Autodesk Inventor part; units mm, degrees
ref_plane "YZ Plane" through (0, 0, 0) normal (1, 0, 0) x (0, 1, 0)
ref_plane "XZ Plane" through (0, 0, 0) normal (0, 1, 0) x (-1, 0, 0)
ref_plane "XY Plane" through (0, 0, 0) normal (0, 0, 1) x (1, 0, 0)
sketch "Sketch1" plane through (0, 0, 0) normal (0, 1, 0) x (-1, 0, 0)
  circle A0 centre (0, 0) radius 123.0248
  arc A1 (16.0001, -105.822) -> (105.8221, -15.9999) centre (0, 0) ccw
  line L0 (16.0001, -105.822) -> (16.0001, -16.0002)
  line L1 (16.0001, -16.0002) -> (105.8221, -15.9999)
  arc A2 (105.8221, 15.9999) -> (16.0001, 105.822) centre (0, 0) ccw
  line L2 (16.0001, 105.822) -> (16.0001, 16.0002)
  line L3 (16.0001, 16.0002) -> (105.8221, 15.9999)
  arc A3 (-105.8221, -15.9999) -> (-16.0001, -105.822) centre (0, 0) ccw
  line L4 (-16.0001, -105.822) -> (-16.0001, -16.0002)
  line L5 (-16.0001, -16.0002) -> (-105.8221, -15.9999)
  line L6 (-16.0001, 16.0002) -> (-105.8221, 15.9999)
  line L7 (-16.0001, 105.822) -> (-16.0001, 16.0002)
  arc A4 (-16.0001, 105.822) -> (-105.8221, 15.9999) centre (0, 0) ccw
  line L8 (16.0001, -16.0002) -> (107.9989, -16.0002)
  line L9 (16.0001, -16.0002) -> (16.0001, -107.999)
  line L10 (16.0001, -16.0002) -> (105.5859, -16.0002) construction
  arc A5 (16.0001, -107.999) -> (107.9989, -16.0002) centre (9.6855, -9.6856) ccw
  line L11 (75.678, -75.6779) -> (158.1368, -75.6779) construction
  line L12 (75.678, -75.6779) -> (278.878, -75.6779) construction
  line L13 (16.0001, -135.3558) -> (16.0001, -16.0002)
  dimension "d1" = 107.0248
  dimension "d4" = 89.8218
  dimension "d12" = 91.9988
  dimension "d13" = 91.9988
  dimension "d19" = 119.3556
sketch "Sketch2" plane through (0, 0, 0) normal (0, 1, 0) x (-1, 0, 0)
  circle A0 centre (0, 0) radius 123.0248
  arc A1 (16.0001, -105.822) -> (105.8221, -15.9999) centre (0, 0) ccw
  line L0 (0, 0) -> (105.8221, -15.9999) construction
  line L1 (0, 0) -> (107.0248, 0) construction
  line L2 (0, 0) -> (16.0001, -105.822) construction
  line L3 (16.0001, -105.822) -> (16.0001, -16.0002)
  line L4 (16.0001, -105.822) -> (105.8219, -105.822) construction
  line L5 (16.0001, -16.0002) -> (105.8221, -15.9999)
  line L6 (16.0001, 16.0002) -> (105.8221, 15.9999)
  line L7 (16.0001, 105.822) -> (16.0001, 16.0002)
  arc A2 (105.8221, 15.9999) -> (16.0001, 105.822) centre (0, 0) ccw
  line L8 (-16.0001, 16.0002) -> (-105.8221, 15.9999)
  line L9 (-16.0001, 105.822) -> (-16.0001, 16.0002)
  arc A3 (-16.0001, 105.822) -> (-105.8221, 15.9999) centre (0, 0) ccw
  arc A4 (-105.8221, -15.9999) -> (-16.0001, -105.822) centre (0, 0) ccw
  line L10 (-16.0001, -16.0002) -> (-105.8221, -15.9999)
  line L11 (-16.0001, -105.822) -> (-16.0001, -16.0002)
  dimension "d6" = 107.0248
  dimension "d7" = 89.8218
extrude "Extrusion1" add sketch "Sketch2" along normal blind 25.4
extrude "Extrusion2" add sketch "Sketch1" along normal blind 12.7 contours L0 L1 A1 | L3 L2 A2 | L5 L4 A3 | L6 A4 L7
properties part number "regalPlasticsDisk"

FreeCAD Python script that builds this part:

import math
import FreeCAD as App
import Part
import Sketcher

V = App.Vector
Q = App.Units.Quantity

doc = App.newDocument("Part")
body = doc.addObject("PartDesign::Body", "Body")

sketch1 = body.newObject("Sketcher::SketchObject", "Sketch")
sketch1.AttachmentSupport = (doc.getObject("XZ_Plane"), [""])
sketch1.MapMode = "FlatFace"
sketch1.addGeometry(Part.Circle(V(0, 0, 0), V(0, 0, 1), 123.0248), False)
sketch1.addGeometry(Part.ArcOfCircle(Part.Circle(V(0, 0, 0), V(0, 0, 1), 107.024758), math.radians(-81.402103), math.radians(-8.597783)), False)
sketch1.addGeometry(Part.LineSegment(V(105.8221, -15.9999, 0), V(16.0001, -16.0002, 0)), False)
sketch1.addGeometry(Part.LineSegment(V(16.0001, -16.0002, 0), V(16.0001, -105.822, 0)), False)
sketch1.addGeometry(Part.ArcOfCircle(Part.Circle(V(0, 0, 0), V(0, 0, 1), 107.024827), math.radians(-171.402217), math.radians(-98.597897)), False)
sketch1.addGeometry(Part.LineSegment(V(-16.0001, -105.822, 0), V(-16.0001, -16.0002, 0)), False)
sketch1.addGeometry(Part.LineSegment(V(-16.0001, -16.0002, 0), V(-105.8221, -15.9999, 0)), False)
sketch1.addGeometry(Part.LineSegment(V(16.0001, 105.822, 0), V(16.0001, 16.0002, 0)), False)
sketch1.addGeometry(Part.LineSegment(V(16.0001, 16.0002, 0), V(105.8221, 15.9999, 0)), False)
sketch1.addGeometry(Part.ArcOfCircle(Part.Circle(V(0, 0, 0), V(0, 0, 1), 107.024827), math.radians(8.597783), math.radians(81.402103)), False)
sketch1.addGeometry(Part.LineSegment(V(-105.8221, 15.9999, 0), V(-16.0001, 16.0002, 0)), False)
sketch1.addGeometry(Part.LineSegment(V(-16.0001, 16.0002, 0), V(-16.0001, 105.822, 0)), False)
sketch1.addGeometry(Part.ArcOfCircle(Part.Circle(V(0, 0, 0), V(0, 0, 1), 107.024758), math.radians(98.597897), math.radians(171.402217)), False)
sketch1.addConstraint(Sketcher.Constraint("Coincident", 1, 2, 2, 1))
sketch1.addConstraint(Sketcher.Constraint("Coincident", 2, 2, 3, 1))
sketch1.addConstraint(Sketcher.Constraint("Coincident", 3, 2, 1, 1))
sketch1.addConstraint(Sketcher.Constraint("Coincident", 4, 2, 5, 1))
sketch1.addConstraint(Sketcher.Constraint("Coincident", 5, 2, 6, 1))
sketch1.addConstraint(Sketcher.Constraint("Coincident", 6, 2, 4, 1))
sketch1.addConstraint(Sketcher.Constraint("Coincident", 7, 2, 8, 1))
sketch1.addConstraint(Sketcher.Constraint("Coincident", 8, 2, 9, 1))
sketch1.addConstraint(Sketcher.Constraint("Coincident", 9, 2, 7, 1))
sketch1.addConstraint(Sketcher.Constraint("Coincident", 10, 2, 11, 1))
sketch1.addConstraint(Sketcher.Constraint("Coincident", 11, 2, 12, 1))
sketch1.addConstraint(Sketcher.Constraint("Coincident", 12, 2, 10, 1))
sketch1.addConstraint(Sketcher.Constraint("Vertical", 3))
sketch1.addConstraint(Sketcher.Constraint("Vertical", 5))
sketch1.addConstraint(Sketcher.Constraint("Vertical", 7))
sketch1.addConstraint(Sketcher.Constraint("Vertical", 11))
sketch1.addConstraint(Sketcher.Constraint("Coincident", 0, 3, -1, 1))
sketch1.addConstraint(Sketcher.Constraint("Coincident", 1, 3, -1, 1))
sketch1.addConstraint(Sketcher.Constraint("Coincident", 4, 3, -1, 1))
sketch1.addConstraint(Sketcher.Constraint("Coincident", 9, 3, -1, 1))
sketch1.addConstraint(Sketcher.Constraint("Coincident", 12, 3, -1, 1))
sketch1.addConstraint(Sketcher.Constraint("Equal", 1, 4))
sketch1.addConstraint(Sketcher.Constraint("Equal", 4, 9))
sketch1.addConstraint(Sketcher.Constraint("Equal", 9, 12))
sketch1.addConstraint(Sketcher.Constraint("Symmetric", 5, 2, 7, 2, -1, 1))
sketch1.addConstraint(Sketcher.Constraint("Symmetric", 2, 2, 10, 2, -1, 1))
sketch1.addConstraint(Sketcher.Constraint("Symmetric", 2, 2, 5, 2, -2))
sketch1.addConstraint(Sketcher.Constraint("Parallel", 2, 6))
sketch1.addConstraint(Sketcher.Constraint("Parallel", 6, 8))
sketch1.addConstraint(Sketcher.Constraint("Parallel", 8, 10))
sketch1.addConstraint(Sketcher.Constraint("Horizontal", 1, 2, 6, 2))
sketch1.addConstraint(Sketcher.Constraint("Radius", 1, Q("107.0248 mm")))
sketch1.addConstraint(Sketcher.Constraint("Diameter", 0, Q("9.687 in")))
sketch1.addConstraint(Sketcher.Constraint("DistanceY", 3, 2, 3, 1, Q("3.5363 in")))
sketch1.addConstraint(Sketcher.Constraint("Distance", 2, Q("3.5363 in")))
pad1 = body.newObject("PartDesign::Pad", "Pad")
pad1.Profile = sketch1
pad1.Length = Q("1 in")
pad1.Reversed = True

sketch2 = body.newObject("Sketcher::SketchObject", "Sketch001")
sketch2.AttachmentSupport = (doc.getObject("XZ_Plane"), [""])
sketch2.MapMode = "FlatFace"
sketch2.addGeometry(Part.LineSegment(V(-16.0001, -16.0002, 0), V(-16.0001, -105.822, 0)), False)
sketch2.addGeometry(Part.ArcOfCircle(Part.Circle(V(0, 0, 0), V(0, 0, 1), 107.024827), math.radians(-171.402217), math.radians(-98.597897)), False)
sketch2.addGeometry(Part.LineSegment(V(-105.8221, -15.9999, 0), V(-16.0001, -16.0002, 0)), False)
sketch2.addGeometry(Part.LineSegment(V(-16.0001, 16.0002, 0), V(-105.8221, 15.9999, 0)), False)
sketch2.addGeometry(Part.ArcOfCircle(Part.Circle(V(0, 0, 0), V(0, 0, 1), 107.024758), math.radians(98.597897), math.radians(171.402217)), False)
sketch2.addGeometry(Part.LineSegment(V(-16.0001, 105.822, 0), V(-16.0001, 16.0002, 0)), False)
sketch2.addGeometry(Part.LineSegment(V(16.0001, -16.0002, 0), V(105.8221, -15.9999, 0)), False)
sketch2.addGeometry(Part.ArcOfCircle(Part.Circle(V(0, 0, 0), V(0, 0, 1), 107.024758), math.radians(-81.402103), math.radians(-8.597783)), False)
sketch2.addGeometry(Part.LineSegment(V(16.0001, -105.822, 0), V(16.0001, -16.0002, 0)), False)
sketch2.addGeometry(Part.LineSegment(V(105.8221, 15.9999, 0), V(16.0001, 16.0002, 0)), False)
sketch2.addGeometry(Part.LineSegment(V(16.0001, 16.0002, 0), V(16.0001, 105.822, 0)), False)
sketch2.addGeometry(Part.ArcOfCircle(Part.Circle(V(0, 0, 0), V(0, 0, 1), 107.024827), math.radians(8.597783), math.radians(81.402103)), False)
sketch2.addConstraint(Sketcher.Constraint("Coincident", 0, 2, 1, 2))
sketch2.addConstraint(Sketcher.Constraint("Coincident", 1, 1, 2, 1))
sketch2.addConstraint(Sketcher.Constraint("Coincident", 2, 2, 0, 1))
sketch2.addConstraint(Sketcher.Constraint("Coincident", 3, 2, 4, 2))
sketch2.addConstraint(Sketcher.Constraint("Coincident", 4, 1, 5, 1))
sketch2.addConstraint(Sketcher.Constraint("Coincident", 5, 2, 3, 1))
sketch2.addConstraint(Sketcher.Constraint("Coincident", 6, 2, 7, 2))
sketch2.addConstraint(Sketcher.Constraint("Coincident", 7, 1, 8, 1))
sketch2.addConstraint(Sketcher.Constraint("Coincident", 8, 2, 6, 1))
sketch2.addConstraint(Sketcher.Constraint("Coincident", 9, 2, 10, 1))
sketch2.addConstraint(Sketcher.Constraint("Coincident", 10, 2, 11, 2))
sketch2.addConstraint(Sketcher.Constraint("Coincident", 11, 1, 9, 1))
sketch2.addConstraint(Sketcher.Constraint("Vertical", 0))
sketch2.addConstraint(Sketcher.Constraint("Vertical", 5))
sketch2.addConstraint(Sketcher.Constraint("Vertical", 8))
sketch2.addConstraint(Sketcher.Constraint("Vertical", 10))
sketch2.addConstraint(Sketcher.Constraint("Coincident", 1, 3, -1, 1))
sketch2.addConstraint(Sketcher.Constraint("Coincident", 4, 3, -1, 1))
sketch2.addConstraint(Sketcher.Constraint("Coincident", 7, 3, -1, 1))
sketch2.addConstraint(Sketcher.Constraint("Coincident", 11, 3, -1, 1))
sketch2.addConstraint(Sketcher.Constraint("Equal", 1, 4))
sketch2.addConstraint(Sketcher.Constraint("Equal", 4, 7))
sketch2.addConstraint(Sketcher.Constraint("Equal", 7, 11))
sketch2.addConstraint(Sketcher.Constraint("Symmetric", 5, 2, 8, 2, -1, 1))
sketch2.addConstraint(Sketcher.Constraint("Symmetric", 2, 2, 9, 2, -1, 1))
sketch2.addConstraint(Sketcher.Constraint("Symmetric", 2, 2, 8, 2, -2))
sketch2.addConstraint(Sketcher.Constraint("Parallel", 2, 3))
sketch2.addConstraint(Sketcher.Constraint("Parallel", 3, 6))
sketch2.addConstraint(Sketcher.Constraint("Parallel", 6, 9))
sketch2.addConstraint(Sketcher.Constraint("Horizontal", 1, 1, 6, 2))
sketch2.addConstraint(Sketcher.Constraint("Radius", 1, Q("107.0248 mm")))
sketch2.addConstraint(Sketcher.Constraint("DistanceY", 0, 2, 0, 1, Q("3.5363 in")))
sketch2.addConstraint(Sketcher.Constraint("Distance", 2, Q("3.5363 in")))
pad2 = body.newObject("PartDesign::Pad", "Pad001")
pad2.Profile = sketch2
pad2.Length = Q("0.5 in")
pad2.Reversed = True

doc.recompute()
